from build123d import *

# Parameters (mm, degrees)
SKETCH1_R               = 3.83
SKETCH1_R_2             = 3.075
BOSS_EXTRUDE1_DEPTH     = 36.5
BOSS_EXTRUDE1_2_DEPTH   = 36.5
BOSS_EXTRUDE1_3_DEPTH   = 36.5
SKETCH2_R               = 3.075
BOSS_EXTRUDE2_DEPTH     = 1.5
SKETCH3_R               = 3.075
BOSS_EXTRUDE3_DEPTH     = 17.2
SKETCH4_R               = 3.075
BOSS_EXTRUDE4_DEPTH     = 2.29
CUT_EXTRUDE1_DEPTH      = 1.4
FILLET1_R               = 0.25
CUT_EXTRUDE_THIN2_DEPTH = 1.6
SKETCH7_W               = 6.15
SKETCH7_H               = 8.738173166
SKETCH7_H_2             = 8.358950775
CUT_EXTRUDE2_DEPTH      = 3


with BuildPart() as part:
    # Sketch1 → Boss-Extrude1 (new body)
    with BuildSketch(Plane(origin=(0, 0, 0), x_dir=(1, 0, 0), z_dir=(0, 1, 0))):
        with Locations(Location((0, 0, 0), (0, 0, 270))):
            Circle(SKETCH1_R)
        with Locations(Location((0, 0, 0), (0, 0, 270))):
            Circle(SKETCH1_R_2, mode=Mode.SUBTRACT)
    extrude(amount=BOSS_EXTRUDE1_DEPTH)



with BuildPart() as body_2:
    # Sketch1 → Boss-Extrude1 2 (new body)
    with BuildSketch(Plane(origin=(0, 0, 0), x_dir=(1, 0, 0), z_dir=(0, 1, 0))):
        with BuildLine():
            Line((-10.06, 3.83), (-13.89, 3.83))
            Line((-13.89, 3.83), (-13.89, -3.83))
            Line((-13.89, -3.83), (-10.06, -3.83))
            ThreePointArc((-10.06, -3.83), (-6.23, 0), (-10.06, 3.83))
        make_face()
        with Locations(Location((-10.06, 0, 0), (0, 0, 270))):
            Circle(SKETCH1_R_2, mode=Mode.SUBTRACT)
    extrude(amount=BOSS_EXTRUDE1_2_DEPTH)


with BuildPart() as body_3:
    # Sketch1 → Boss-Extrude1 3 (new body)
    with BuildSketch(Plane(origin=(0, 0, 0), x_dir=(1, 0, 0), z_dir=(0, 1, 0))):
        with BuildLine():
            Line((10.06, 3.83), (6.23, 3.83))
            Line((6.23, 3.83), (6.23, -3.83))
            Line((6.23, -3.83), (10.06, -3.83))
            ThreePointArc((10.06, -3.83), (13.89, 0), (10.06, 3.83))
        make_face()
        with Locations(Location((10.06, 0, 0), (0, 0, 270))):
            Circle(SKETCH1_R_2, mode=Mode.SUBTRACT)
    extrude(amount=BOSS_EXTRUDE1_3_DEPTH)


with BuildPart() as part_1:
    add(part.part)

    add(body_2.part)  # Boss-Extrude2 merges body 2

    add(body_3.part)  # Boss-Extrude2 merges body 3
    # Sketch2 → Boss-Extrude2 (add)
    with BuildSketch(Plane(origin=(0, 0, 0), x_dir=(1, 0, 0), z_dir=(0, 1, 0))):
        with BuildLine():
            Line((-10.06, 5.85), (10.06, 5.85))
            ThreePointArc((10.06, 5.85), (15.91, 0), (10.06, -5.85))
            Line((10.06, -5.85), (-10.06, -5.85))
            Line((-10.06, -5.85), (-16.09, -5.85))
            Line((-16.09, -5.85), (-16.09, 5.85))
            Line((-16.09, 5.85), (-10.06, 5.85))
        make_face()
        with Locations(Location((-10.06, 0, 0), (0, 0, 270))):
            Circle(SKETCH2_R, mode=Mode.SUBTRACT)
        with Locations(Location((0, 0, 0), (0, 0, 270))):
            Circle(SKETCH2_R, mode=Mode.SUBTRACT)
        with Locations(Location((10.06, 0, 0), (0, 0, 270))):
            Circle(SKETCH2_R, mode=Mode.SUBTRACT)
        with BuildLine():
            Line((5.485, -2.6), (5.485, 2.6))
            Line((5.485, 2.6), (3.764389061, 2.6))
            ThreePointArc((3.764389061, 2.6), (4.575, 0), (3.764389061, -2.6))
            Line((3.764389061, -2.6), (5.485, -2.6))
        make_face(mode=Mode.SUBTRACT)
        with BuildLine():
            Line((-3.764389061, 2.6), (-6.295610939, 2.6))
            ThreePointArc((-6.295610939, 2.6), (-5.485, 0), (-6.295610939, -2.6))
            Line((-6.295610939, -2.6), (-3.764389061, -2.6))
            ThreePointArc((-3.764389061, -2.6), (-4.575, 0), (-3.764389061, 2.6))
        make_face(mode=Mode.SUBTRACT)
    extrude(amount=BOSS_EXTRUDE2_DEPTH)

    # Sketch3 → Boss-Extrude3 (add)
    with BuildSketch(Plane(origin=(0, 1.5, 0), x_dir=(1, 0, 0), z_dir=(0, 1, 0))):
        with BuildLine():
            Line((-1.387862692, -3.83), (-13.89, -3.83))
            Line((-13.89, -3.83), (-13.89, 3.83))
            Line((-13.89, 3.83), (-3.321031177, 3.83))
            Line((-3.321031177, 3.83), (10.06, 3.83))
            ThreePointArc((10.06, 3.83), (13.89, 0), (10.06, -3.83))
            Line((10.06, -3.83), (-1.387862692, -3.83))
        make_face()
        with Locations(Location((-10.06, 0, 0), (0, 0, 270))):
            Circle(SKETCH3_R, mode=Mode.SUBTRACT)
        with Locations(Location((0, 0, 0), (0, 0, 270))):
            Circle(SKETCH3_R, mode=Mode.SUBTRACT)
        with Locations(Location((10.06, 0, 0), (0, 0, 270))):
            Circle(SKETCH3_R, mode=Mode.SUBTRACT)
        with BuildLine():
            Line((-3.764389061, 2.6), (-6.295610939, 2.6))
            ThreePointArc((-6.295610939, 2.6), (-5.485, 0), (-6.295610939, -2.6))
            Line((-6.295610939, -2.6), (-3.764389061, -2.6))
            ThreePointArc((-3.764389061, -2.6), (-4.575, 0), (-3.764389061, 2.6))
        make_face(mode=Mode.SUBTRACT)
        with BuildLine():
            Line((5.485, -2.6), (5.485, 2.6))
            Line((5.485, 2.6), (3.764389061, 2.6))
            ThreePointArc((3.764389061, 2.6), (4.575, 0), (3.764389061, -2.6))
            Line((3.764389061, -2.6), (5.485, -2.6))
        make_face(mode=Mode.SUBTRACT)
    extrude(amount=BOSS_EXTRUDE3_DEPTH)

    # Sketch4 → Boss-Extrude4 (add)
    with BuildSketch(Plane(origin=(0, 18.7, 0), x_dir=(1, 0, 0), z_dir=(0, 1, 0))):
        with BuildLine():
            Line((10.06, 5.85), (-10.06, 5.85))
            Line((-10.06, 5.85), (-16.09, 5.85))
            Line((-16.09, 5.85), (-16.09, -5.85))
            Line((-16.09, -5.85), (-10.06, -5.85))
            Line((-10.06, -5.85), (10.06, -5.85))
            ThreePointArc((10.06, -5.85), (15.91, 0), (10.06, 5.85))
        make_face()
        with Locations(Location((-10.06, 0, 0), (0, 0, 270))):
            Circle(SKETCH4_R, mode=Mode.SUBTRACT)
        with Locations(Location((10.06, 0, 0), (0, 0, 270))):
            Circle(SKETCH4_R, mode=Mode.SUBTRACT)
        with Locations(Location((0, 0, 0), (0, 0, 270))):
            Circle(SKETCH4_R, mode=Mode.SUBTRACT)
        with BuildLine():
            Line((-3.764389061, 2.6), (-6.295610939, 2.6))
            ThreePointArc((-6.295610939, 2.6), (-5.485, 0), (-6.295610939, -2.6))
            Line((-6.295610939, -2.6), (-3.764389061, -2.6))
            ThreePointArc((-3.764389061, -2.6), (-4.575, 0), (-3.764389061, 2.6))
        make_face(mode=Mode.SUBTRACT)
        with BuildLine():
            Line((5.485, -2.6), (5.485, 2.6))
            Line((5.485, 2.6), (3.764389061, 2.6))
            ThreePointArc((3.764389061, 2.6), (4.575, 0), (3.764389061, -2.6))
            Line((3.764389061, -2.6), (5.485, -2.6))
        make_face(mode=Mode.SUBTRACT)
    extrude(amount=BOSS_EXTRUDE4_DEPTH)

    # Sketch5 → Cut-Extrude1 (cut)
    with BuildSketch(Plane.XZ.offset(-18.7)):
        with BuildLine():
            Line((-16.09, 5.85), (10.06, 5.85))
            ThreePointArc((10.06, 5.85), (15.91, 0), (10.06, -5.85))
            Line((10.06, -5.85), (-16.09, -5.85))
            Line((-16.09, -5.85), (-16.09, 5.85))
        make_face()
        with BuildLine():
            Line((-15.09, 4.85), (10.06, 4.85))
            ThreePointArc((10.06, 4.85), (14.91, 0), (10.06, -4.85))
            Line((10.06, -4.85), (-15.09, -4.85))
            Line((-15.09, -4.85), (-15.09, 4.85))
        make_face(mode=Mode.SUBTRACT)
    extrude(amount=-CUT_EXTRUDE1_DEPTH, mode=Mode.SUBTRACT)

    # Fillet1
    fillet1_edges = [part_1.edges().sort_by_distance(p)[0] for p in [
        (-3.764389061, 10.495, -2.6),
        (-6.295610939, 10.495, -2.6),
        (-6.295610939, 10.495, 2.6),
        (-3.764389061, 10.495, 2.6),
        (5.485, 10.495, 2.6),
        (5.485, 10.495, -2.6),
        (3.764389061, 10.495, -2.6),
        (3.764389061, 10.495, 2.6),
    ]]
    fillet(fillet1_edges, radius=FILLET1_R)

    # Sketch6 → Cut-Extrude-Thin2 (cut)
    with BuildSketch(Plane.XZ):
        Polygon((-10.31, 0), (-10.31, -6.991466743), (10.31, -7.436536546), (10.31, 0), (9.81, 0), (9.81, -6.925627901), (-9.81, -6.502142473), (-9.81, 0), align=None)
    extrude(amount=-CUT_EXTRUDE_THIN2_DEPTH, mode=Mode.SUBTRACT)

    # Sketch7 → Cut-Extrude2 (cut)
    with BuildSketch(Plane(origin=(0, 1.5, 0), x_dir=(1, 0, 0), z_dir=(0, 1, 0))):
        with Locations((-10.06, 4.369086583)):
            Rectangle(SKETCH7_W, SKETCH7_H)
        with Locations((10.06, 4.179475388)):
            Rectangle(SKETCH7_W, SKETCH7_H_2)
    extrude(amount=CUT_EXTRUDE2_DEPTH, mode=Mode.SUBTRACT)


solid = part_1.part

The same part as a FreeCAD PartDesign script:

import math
import FreeCAD as App
import Part
import Sketcher


def edges_at(feature, points):
    """Names of the edges that pass closest to the given points."""
    edges = feature.Shape.Edges
    near = lambda p: min(range(len(edges)), key=lambda i: edges[i].distToShape(Part.Vertex(*p))[0])
    return sorted({f"Edge{near(p) + 1}" for p in points})


def add_polygon(sketch, points):
    """Adds a closed chain of lines whose ends are joined by coincident constraints."""
    first, n = sketch.GeometryCount, len(points)
    for a, b in zip(points, points[1:] + points[:1]):
        sketch.addGeometry(Part.LineSegment(App.Vector(*a, 0), App.Vector(*b, 0)), False)
    for i in range(n):
        sketch.addConstraint(Sketcher.Constraint("Coincident", first + i, 2, first + (i + 1) % n, 1))

doc = App.newDocument("Part")
body = doc.addObject("PartDesign::Body", "Body")

# Sketch on XZ plane
sketch1 = doc.addObject("Sketcher::SketchObject", "Sketch")
body.addObject(sketch1)
sketch1.AttachmentSupport = (doc.XZ_Plane, [""])
sketch1.MapMode = "FlatFace"
sketch1.addGeometry([
    Part.Circle(App.Vector(0, 0, 0), App.Vector(0, 0, 1), 3.83),
    Part.Circle(App.Vector(0, 0, 0), App.Vector(0, 0, 1), 3.075),
], False)
sketch1.addConstraint([
    Sketcher.Constraint("Coincident", 0, 3, -1, 1),
    Sketcher.Constraint("Coincident", 1, 3, -1, 1),
    Sketcher.Constraint("Diameter", 0, 7.66),
    Sketcher.Constraint("Diameter", 1, 6.15),
])
pad1 = doc.addObject("PartDesign::Pad", "Pad")
body.addObject(pad1)
pad1.Profile = sketch1
pad1.Length = 36.5
pad1.Reversed = True
body2 = doc.addObject("PartDesign::Body", "Body001")

# Sketch on XZ plane
sketch2 = doc.addObject("Sketcher::SketchObject", "Sketch001")
body2.addObject(sketch2)
sketch2.AttachmentSupport = (doc.getObject("XZ_Plane001"), [""])
sketch2.MapMode = "FlatFace"
sketch2.addGeometry([
    Part.LineSegment(App.Vector(-10.06, -3.83, 0), App.Vector(-13.89, -3.83, 0)),  # 0
    Part.LineSegment(App.Vector(-13.89, -3.83, 0), App.Vector(-13.89, 3.83, 0)),  # 1
    Part.LineSegment(App.Vector(-13.89, 3.83, 0), App.Vector(-10.06, 3.83, 0)),  # 2
    Part.ArcOfCircle(Part.Circle(App.Vector(-10.06, 0, 0), App.Vector(0, 0, 1), 3.83), math.radians(-90), math.radians(90)),  # 3
    Part.Circle(App.Vector(-10.06, 0, 0), App.Vector(0, 0, 1), 3.075),  # 4
], False)
sketch2.addConstraint([
    Sketcher.Constraint("Coincident", 0, 2, 1, 1),
    Sketcher.Constraint("Coincident", 1, 2, 2, 1),
    Sketcher.Constraint("Tangent", 2, 2, 3, 2),
    Sketcher.Constraint("Tangent", 3, 1, 0, 1),
    Sketcher.Constraint("Horizontal", 0),
    Sketcher.Constraint("Vertical", 1),
    Sketcher.Constraint("Horizontal", 2),
    Sketcher.Constraint("Coincident", 4, 3, 3, 3),
    Sketcher.Constraint("PointOnObject", 3, 3, -1),
    Sketcher.Constraint("Diameter", 4, 6.15),
    Sketcher.Constraint("Radius", 3, 3.83),
    Sketcher.Constraint("DistanceX", 0, 2, 0, 1, 3.83),
    Sketcher.Constraint("DistanceX", 3, 3, -1, 1, 10.06),
])
pad2 = doc.addObject("PartDesign::Pad", "Pad001")
body2.addObject(pad2)
pad2.Profile = sketch2
pad2.Length = 36.5
pad2.Reversed = True
body3 = doc.addObject("PartDesign::Body", "Body002")

# Sketch on XZ plane
sketch3 = doc.addObject("Sketcher::SketchObject", "Sketch002")
body3.addObject(sketch3)
sketch3.AttachmentSupport = (doc.getObject("XZ_Plane002"), [""])
sketch3.MapMode = "FlatFace"
sketch3.addGeometry([
    Part.LineSegment(App.Vector(10.06, -3.83, 0), App.Vector(6.23, -3.83, 0)),  # 0
    Part.LineSegment(App.Vector(6.23, -3.83, 0), App.Vector(6.23, 3.83, 0)),  # 1
    Part.LineSegment(App.Vector(6.23, 3.83, 0), App.Vector(10.06, 3.83, 0)),  # 2
    Part.ArcOfCircle(Part.Circle(App.Vector(10.06, 0, 0), App.Vector(0, 0, 1), 3.83), math.radians(-90), math.radians(90)),  # 3
    Part.Circle(App.Vector(10.06, 0, 0), App.Vector(0, 0, 1), 3.075),  # 4
], False)
sketch3.addConstraint([
    Sketcher.Constraint("Coincident", 0, 2, 1, 1),
    Sketcher.Constraint("Coincident", 1, 2, 2, 1),
    Sketcher.Constraint("Tangent", 2, 2, 3, 2),
    Sketcher.Constraint("Tangent", 3, 1, 0, 1),
    Sketcher.Constraint("Horizontal", 0),
    Sketcher.Constraint("Vertical", 1),
    Sketcher.Constraint("Horizontal", 2),
    Sketcher.Constraint("Coincident", 4, 3, 3, 3),
    Sketcher.Constraint("PointOnObject", 3, 3, -1),
    Sketcher.Constraint("Diameter", 4, 6.15),
    Sketcher.Constraint("Radius", 3, 3.83),
    Sketcher.Constraint("DistanceX", 0, 2, 0, 1, 3.83),
    Sketcher.Constraint("DistanceX", -1, 1, 3, 3, 10.06),
])
pad3 = doc.addObject("PartDesign::Pad", "Pad002")
body3.addObject(pad3)
pad3.Profile = sketch3
pad3.Length = 36.5
pad3.Reversed = True
body.AllowCompound = True
doc.recompute()

boolean = doc.addObject("PartDesign::Boolean", "Boolean")
body.addObject(boolean)
boolean.Type = "Fuse"
boolean.addObjects([body2])
doc.recompute()

boolean2 = doc.addObject("PartDesign::Boolean", "Boolean001")
body.addObject(boolean2)
boolean2.Type = "Fuse"
boolean2.addObjects([body3])

# Sketch on XZ plane
sketch4 = doc.addObject("Sketcher::SketchObject", "Sketch003")
body.addObject(sketch4)
sketch4.AttachmentSupport = (doc.XZ_Plane, [""])
sketch4.MapMode = "FlatFace"
sketch4.addGeometry([
    Part.ArcOfCircle(Part.Circle(App.Vector(10.06, 0, 0), App.Vector(0, 0, 1), 5.85), math.radians(-90), math.radians(90)),  # 0
    Part.LineSegment(App.Vector(10.06, -5.85, 0), App.Vector(-16.09, -5.85, 0)),  # 1
    Part.LineSegment(App.Vector(-16.09, -5.85, 0), App.Vector(-16.09, 5.85, 0)),  # 2
    Part.LineSegment(App.Vector(-16.09, 5.85, 0), App.Vector(10.06, 5.85, 0)),  # 3
    Part.Circle(App.Vector(10.06, 0, 0), App.Vector(0, 0, 1), 3.075),  # 4
    Part.LineSegment(App.Vector(5.485, 2.6, 0), App.Vector(3.764389, 2.6, 0)),  # 5
    Part.ArcOfCircle(Part.Circle(App.Vector(0, 0, 0), App.Vector(0, 0, 1), 4.575), math.radians(-34.632183), math.radians(34.632183)),  # 6
    Part.LineSegment(App.Vector(3.764389, -2.6, 0), App.Vector(5.485, -2.6, 0)),  # 7
    Part.LineSegment(App.Vector(5.485, -2.6, 0), App.Vector(5.485, 2.6, 0)),  # 8
    Part.Circle(App.Vector(0, 0, 0), App.Vector(0, 0, 1), 3.075),  # 9
    Part.ArcOfCircle(Part.Circle(App.Vector(0, 0, 0), App.Vector(0, 0, 1), 4.575), math.radians(145.367817), math.radians(214.632183)),  # 10
    Part.LineSegment(App.Vector(-3.764389, 2.6, 0), App.Vector(-6.295611, 2.6, 0)),  # 11
    Part.ArcOfCircle(Part.Circle(App.Vector(-10.06, 0, 0), App.Vector(0, 0, 1), 4.575), math.radians(-34.632183), math.radians(34.632183)),  # 12
    Part.LineSegment(App.Vector(-6.295611, -2.6, 0), App.Vector(-3.764389, -2.6, 0)),  # 13
    Part.Circle(App.Vector(-10.06, 0, 0), App.Vector(0, 0, 1), 3.075),  # 14
], False)
sketch4.addConstraint([
    Sketcher.Constraint("Tangent", 0, 1, 1, 1),
    Sketcher.Constraint("Coincident", 1, 2, 2, 1),
    Sketcher.Constraint("Coincident", 2, 2, 3, 1),
    Sketcher.Constraint("Tangent", 3, 2, 0, 2),
    Sketcher.Constraint("Coincident", 5, 2, 6, 2),
    Sketcher.Constraint("Coincident", 6, 1, 7, 1),
    Sketcher.Constraint("Coincident", 7, 2, 8, 1),
    Sketcher.Constraint("Coincident", 8, 2, 5, 1),
    Sketcher.Constraint("Coincident", 10, 1, 11, 1),
    Sketcher.Constraint("Coincident", 11, 2, 12, 2),
    Sketcher.Constraint("Coincident", 12, 1, 13, 1),
    Sketcher.Constraint("Coincident", 13, 2, 10, 2),
    Sketcher.Constraint("Horizontal", 1),
    Sketcher.Constraint("Vertical", 2),
    Sketcher.Constraint("Horizontal", 3),
    Sketcher.Constraint("Horizontal", 5),
    Sketcher.Constraint("Horizontal", 7),
    Sketcher.Constraint("Vertical", 8),
    Sketcher.Constraint("Horizontal", 11),
    Sketcher.Constraint("Horizontal", 13),
    Sketcher.Constraint("Coincident", 6, 3, -1, 1),
    Sketcher.Constraint("Coincident", 9, 3, -1, 1),
    Sketcher.Constraint("Coincident", 10, 3, -1, 1),
    Sketcher.Constraint("Coincident", 4, 3, 0, 3),
    Sketcher.Constraint("Coincident", 14, 3, 12, 3),
    Sketcher.Constraint("Equal", 4, 9),
    Sketcher.Constraint("Equal", 6, 10),
    Sketcher.Constraint("Equal", 10, 12),
    Sketcher.Constraint("Equal", 9, 14),
    Sketcher.Constraint("Symmetric", 0, 3, 12, 3, -1, 1),
    Sketcher.Constraint("Symmetric", 11, 2, 12, 1, -1),
    Sketcher.Constraint("Horizontal", 8, 2, 10, 1),
    Sketcher.Constraint("Horizontal", 7, 2, 12, 1),
    Sketcher.Constraint("Diameter", 4, 6.15),
    Sketcher.Constraint("Radius", 0, 5.85),
    Sketcher.Constraint("DistanceY", 8, 1, 8, 2, 5.2),
    Sketcher.Constraint("Radius", 6, 4.575),
    Sketcher.Constraint("DistanceX", 1, 2, 1, 1, 26.15),
    Sketcher.Constraint("DistanceX", -1, 1, 0, 3, 10.06),
    Sketcher.Constraint("DistanceX", -1, 1, 7, 2, 5.485),
])
pad4 = doc.addObject("PartDesign::Pad", "Pad003")
body.addObject(pad4)
pad4.Profile = sketch4
pad4.Length = 1.5
pad4.Reversed = True

# Sketch on XZ plane
sketch5 = doc.addObject("Sketcher::SketchObject", "Sketch004")
body.addObject(sketch5)
sketch5.AttachmentSupport = (doc.XZ_Plane, [""])
sketch5.MapMode = "FlatFace"
sketch5.AttachmentOffset = App.Placement(App.Vector(0, 0, -1.5), App.Rotation())
sketch5.addGeometry([
    Part.LineSegment(App.Vector(-13.89, -3.83, 0), App.Vector(-13.89, 3.83, 0)),  # 0
    Part.LineSegment(App.Vector(-13.89, 3.83, 0), App.Vector(10.06, 3.83, 0)),  # 1
    Part.ArcOfCircle(Part.Circle(App.Vector(10.06, 0, 0), App.Vector(0, 0, 1), 3.83), math.radians(-90), math.radians(90)),  # 2
    Part.LineSegment(App.Vector(10.06, -3.83, 0), App.Vector(-13.89, -3.83, 0)),  # 3
    Part.Circle(App.Vector(10.06, 0, 0), App.Vector(0, 0, 1), 3.075),  # 4
    Part.LineSegment(App.Vector(5.485, 2.6, 0), App.Vector(3.764389, 2.6, 0)),  # 5
    Part.ArcOfCircle(Part.Circle(App.Vector(0, 0, 0), App.Vector(0, 0, 1), 4.575), math.radians(-34.632183), math.radians(34.632183)),  # 6
    Part.LineSegment(App.Vector(3.764389, -2.6, 0), App.Vector(5.485, -2.6, 0)),  # 7
    Part.LineSegment(App.Vector(5.485, -2.6, 0), App.Vector(5.485, 2.6, 0)),  # 8
    Part.Circle(App.Vector(0, 0, 0), App.Vector(0, 0, 1), 3.075),  # 9
    Part.ArcOfCircle(Part.Circle(App.Vector(0, 0, 0), App.Vector(0, 0, 1), 4.575), math.radians(145.367817), math.radians(214.632183)),  # 10
    Part.LineSegment(App.Vector(-3.764389, 2.6, 0), App.Vector(-6.295611, 2.6, 0)),  # 11
    Part.ArcOfCircle(Part.Circle(App.Vector(-10.06, 0, 0), App.Vector(0, 0, 1), 4.575), math.radians(-34.632183), math.radians(34.632183)),  # 12
    Part.LineSegment(App.Vector(-6.295611, -2.6, 0), App.Vector(-3.764389, -2.6, 0)),  # 13
    Part.Circle(App.Vector(-10.06, 0, 0), App.Vector(0, 0, 1), 3.075),  # 14
], False)
sketch5.addConstraint([
    Sketcher.Constraint("Coincident", 0, 2, 1, 1),
    Sketcher.Constraint("Tangent", 1, 2, 2, 2),
    Sketcher.Constraint("Tangent", 2, 1, 3, 1),
    Sketcher.Constraint("Coincident", 3, 2, 0, 1),
    Sketcher.Constraint("Coincident", 5, 2, 6, 2),
    Sketcher.Constraint("Coincident", 6, 1, 7, 1),
    Sketcher.Constraint("Coincident", 7, 2, 8, 1),
    Sketcher.Constraint("Coincident", 8, 2, 5, 1),
    Sketcher.Constraint("Coincident", 10, 1, 11, 1),
    Sketcher.Constraint("Coincident", 11, 2, 12, 2),
    Sketcher.Constraint("Coincident", 12, 1, 13, 1),
    Sketcher.Constraint("Coincident", 13, 2, 10, 2),
    Sketcher.Constraint("Vertical", 0),
    Sketcher.Constraint("Horizontal", 1),
    Sketcher.Constraint("Horizontal", 3),
    Sketcher.Constraint("Horizontal", 5),
    Sketcher.Constraint("Horizontal", 7),
    Sketcher.Constraint("Vertical", 8),
    Sketcher.Constraint("Horizontal", 11),
    Sketcher.Constraint("Horizontal", 13),
    Sketcher.Constraint("Coincident", 6, 3, -1, 1),
    Sketcher.Constraint("Coincident", 9, 3, -1, 1),
    Sketcher.Constraint("Coincident", 10, 3, -1, 1),
    Sketcher.Constraint("Coincident", 4, 3, 2, 3),
    Sketcher.Constraint("Coincident", 14, 3, 12, 3),
    Sketcher.Constraint("Equal", 4, 9),
    Sketcher.Constraint("Equal", 6, 10),
    Sketcher.Constraint("Equal", 10, 12),
    Sketcher.Constraint("Equal", 9, 14),
    Sketcher.Constraint("Symmetric", 2, 3, 12, 3, -1, 1),
    Sketcher.Constraint("Symmetric", 11, 2, 12, 1, -1),
    Sketcher.Constraint("Horizontal", 8, 2, 10, 1),
    Sketcher.Constraint("Horizontal", 7, 2, 12, 1),
    Sketcher.Constraint("Diameter", 4, 6.15),
    Sketcher.Constraint("Radius", 2, 3.83),
    Sketcher.Constraint("DistanceY", 8, 1, 8, 2, 5.2),
    Sketcher.Constraint("Radius", 6, 4.575),
    Sketcher.Constraint("DistanceX", 1, 1, 1, 2, 23.95),
    Sketcher.Constraint("DistanceX", -1, 1, 2, 3, 10.06),
    Sketcher.Constraint("DistanceX", -1, 1, 7, 2, 5.485),
])
pad5 = doc.addObject("PartDesign::Pad", "Pad004")
body.addObject(pad5)
pad5.Profile = sketch5
pad5.Length = 17.2
pad5.Reversed = True

# Sketch on XZ plane
sketch6 = doc.addObject("Sketcher::SketchObject", "Sketch005")
body.addObject(sketch6)
sketch6.AttachmentSupport = (doc.XZ_Plane, [""])
sketch6.MapMode = "FlatFace"
sketch6.AttachmentOffset = App.Placement(App.Vector(0, 0, -18.7), App.Rotation())
sketch6.addGeometry([
    Part.LineSegment(App.Vector(10.06, -5.85, 0), App.Vector(-16.09, -5.85, 0)),  # 0
    Part.LineSegment(App.Vector(-16.09, -5.85, 0), App.Vector(-16.09, 5.85, 0)),  # 1
    Part.LineSegment(App.Vector(-16.09, 5.85, 0), App.Vector(10.06, 5.85, 0)),  # 2
    Part.ArcOfCircle(Part.Circle(App.Vector(10.06, 0, 0), App.Vector(0, 0, 1), 5.85), math.radians(-90), math.radians(90)),  # 3
    Part.Circle(App.Vector(-10.06, 0, 0), App.Vector(0, 0, 1), 3.075),  # 4
    Part.LineSegment(App.Vector(-6.295611, -2.6, 0), App.Vector(-3.764389, -2.6, 0)),  # 5
    Part.ArcOfCircle(Part.Circle(App.Vector(0, 0, 0), App.Vector(0, 0, 1), 4.575), math.radians(145.367817), math.radians(214.632183)),  # 6
    Part.LineSegment(App.Vector(-3.764389, 2.6, 0), App.Vector(-6.295611, 2.6, 0)),  # 7
    Part.ArcOfCircle(Part.Circle(App.Vector(-10.06, 0, 0), App.Vector(0, 0, 1), 4.575), math.radians(-34.632183), math.radians(34.632183)),  # 8
    Part.Circle(App.Vector(0, 0, 0), App.Vector(0, 0, 1), 3.075),  # 9
    Part.LineSegment(App.Vector(5.485, -2.6, 0), App.Vector(5.485, 2.6, 0)),  # 10
    Part.LineSegment(App.Vector(5.485, 2.6, 0), App.Vector(3.764389, 2.6, 0)),  # 11
    Part.ArcOfCircle(Part.Circle(App.Vector(0, 0, 0), App.Vector(0, 0, 1), 4.575), math.radians(-34.632183), math.radians(34.632183)),  # 12
    Part.LineSegment(App.Vector(3.764389, -2.6, 0), App.Vector(5.485, -2.6, 0)),  # 13
    Part.Circle(App.Vector(10.06, 0, 0), App.Vector(0, 0, 1), 3.075),  # 14
], False)
sketch6.addConstraint([
    Sketcher.Constraint("Coincident", 0, 2, 1, 1),
    Sketcher.Constraint("Coincident", 1, 2, 2, 1),
    Sketcher.Constraint("Tangent", 2, 2, 3, 2),
    Sketcher.Constraint("Tangent", 3, 1, 0, 1),
    Sketcher.Constraint("Coincident", 5, 2, 6, 2),
    Sketcher.Constraint("Coincident", 6, 1, 7, 1),
    Sketcher.Constraint("Coincident", 7, 2, 8, 2),
    Sketcher.Constraint("Coincident", 8, 1, 5, 1),
    Sketcher.Constraint("Coincident", 10, 2, 11, 1),
    Sketcher.Constraint("Coincident", 11, 2, 12, 2),
    Sketcher.Constraint("Coincident", 12, 1, 13, 1),
    Sketcher.Constraint("Coincident", 13, 2, 10, 1),
    Sketcher.Constraint("Horizontal", 0),
    Sketcher.Constraint("Vertical", 1),
    Sketcher.Constraint("Horizontal", 2),
    Sketcher.Constraint("Horizontal", 5),
    Sketcher.Constraint("Horizontal", 7),
    Sketcher.Constraint("Vertical", 10),
    Sketcher.Constraint("Horizontal", 11),
    Sketcher.Constraint("Horizontal", 13),
    Sketcher.Constraint("Coincident", 6, 3, -1, 1),
    Sketcher.Constraint("Coincident", 9, 3, -1, 1),
    Sketcher.Constraint("Coincident", 12, 3, -1, 1),
    Sketcher.Constraint("Coincident", 8, 3, 4, 3),
    Sketcher.Constraint("Coincident", 14, 3, 3, 3),
    Sketcher.Constraint("Equal", 6, 8),
    Sketcher.Constraint("Equal", 4, 9),
    Sketcher.Constraint("Equal", 8, 12),
    Sketcher.Constraint("Equal", 9, 14),
    Sketcher.Constraint("Symmetric", 3, 3, 4, 3, -1, 1),
    Sketcher.Constraint("Symmetric", 7, 2, 8, 1, -1),
    Sketcher.Constraint("Horizontal", 7, 2, 10, 2),
    Sketcher.Constraint("Horizontal", 8, 1, 12, 1),
    Sketcher.Constraint("Diameter", 4, 6.15),
    Sketcher.Constraint("Radius", 3, 5.85),
    Sketcher.Constraint("DistanceY", 10, 1, 10, 2, 5.2),
    Sketcher.Constraint("Radius", 6, 4.575),
    Sketcher.Constraint("DistanceX", 0, 2, 0, 1, 26.15),
    Sketcher.Constraint("DistanceX", -1, 1, 3, 3, 10.06),
    Sketcher.Constraint("DistanceX", -1, 1, 10, 2, 5.485),
])
pad6 = doc.addObject("PartDesign::Pad", "Pad005")
body.addObject(pad6)
pad6.Profile = sketch6
pad6.Length = 2.29
pad6.Reversed = True

# Sketch on XZ plane
sketch7 = doc.addObject("Sketcher::SketchObject", "Sketch006")
body.addObject(sketch7)
sketch7.AttachmentSupport = (doc.XZ_Plane, [""])
sketch7.MapMode = "FlatFace"
sketch7.AttachmentOffset = App.Placement(App.Vector(0, 0, -18.7), App.Rotation())
sketch7.addGeometry([
    Part.LineSegment(App.Vector(10.06, 5.85, 0), App.Vector(-16.09, 5.85, 0)),  # 0
    Part.LineSegment(App.Vector(-16.09, 5.85, 0), App.Vector(-16.09, -5.85, 0)),  # 1
    Part.LineSegment(App.Vector(-16.09, -5.85, 0), App.Vector(10.06, -5.85, 0)),  # 2
    Part.ArcOfCircle(Part.Circle(App.Vector(10.06, 0, 0), App.Vector(0, 0, 1), 5.85), math.radians(-90), math.radians(90)),  # 3
    Part.LineSegment(App.Vector(-15.09, 4.85, 0), App.Vector(10.06, 4.85, 0)),  # 4
    Part.ArcOfCircle(Part.Circle(App.Vector(10.06, 0, 0), App.Vector(0, 0, 1), 4.85), math.radians(-90), math.radians(90)),  # 5
    Part.LineSegment(App.Vector(10.06, -4.85, 0), App.Vector(-15.09, -4.85, 0)),  # 6
    Part.LineSegment(App.Vector(-15.09, -4.85, 0), App.Vector(-15.09, 4.85, 0)),  # 7
], False)
sketch7.addConstraint([
    Sketcher.Constraint("Coincident", 0, 2, 1, 1),
    Sketcher.Constraint("Coincident", 1, 2, 2, 1),
    Sketcher.Constraint("Tangent", 2, 2, 3, 1),
    Sketcher.Constraint("Tangent", 3, 2, 0, 1),
    Sketcher.Constraint("Tangent", 4, 2, 5, 2),
    Sketcher.Constraint("Tangent", 5, 1, 6, 1),
    Sketcher.Constraint("Coincident", 6, 2, 7, 1),
    Sketcher.Constraint("Coincident", 7, 2, 4, 1),
    Sketcher.Constraint("Horizontal", 0),
    Sketcher.Constraint("Vertical", 1),
    Sketcher.Constraint("Horizontal", 2),
    Sketcher.Constraint("Horizontal", 4),
    Sketcher.Constraint("Horizontal", 6),
    Sketcher.Constraint("Vertical", 7),
    Sketcher.Constraint("Coincident", 5, 3, 3, 3),
    Sketcher.Constraint("PointOnObject", 3, 3, -1),
    Sketcher.Constraint("Radius", 3, 5.85),
    Sketcher.Constraint("Radius", 5, 4.85),
    Sketcher.Constraint("DistanceX", 1, 2, 6, 2, 1.0),
    Sketcher.Constraint("DistanceX", 0, 2, 0, 1, 26.15),
    Sketcher.Constraint("DistanceX", -1, 1, 3, 3, 10.06),
])
pocket1 = doc.addObject("PartDesign::Pocket", "Pocket")
body.addObject(pocket1)
pocket1.Profile = sketch7
pocket1.Length = 1.4
doc.recompute()

fillet = doc.addObject("PartDesign::Fillet", "Fillet")
body.addObject(fillet)
fillet.Base = (pocket1, edges_at(pocket1, [
    (-3.764, 10.495, -2.6),
    (-6.296, 10.495, -2.6),
    (-6.296, 10.495, 2.6),
    (-3.764, 10.495, 2.6),
    (5.485, 10.495, 2.6),
    (5.485, 10.495, -2.6),
    (3.764, 10.495, -2.6),
    (3.764, 10.495, 2.6),
]))
fillet.Radius = 0.25

# Sketch on XZ plane
sketch8 = doc.addObject("Sketcher::SketchObject", "Sketch007")
body.addObject(sketch8)
sketch8.AttachmentSupport = (doc.XZ_Plane, [""])
sketch8.MapMode = "FlatFace"
add_polygon(sketch8, [(-10.31, 0), (-10.31, -6.991467), (10.31, -7.436537), (10.31, 0), (9.81, 0), (9.81, -6.925628), (-9.81, -6.502142), (-9.81, 0)])  # lines 0-7
sketch8.addConstraint([
    Sketcher.Constraint("Vertical", 0),
    Sketcher.Constraint("Vertical", 2),
    Sketcher.Constraint("Horizontal", 3),
    Sketcher.Constraint("Vertical", 4),
    Sketcher.Constraint("Vertical", 6),
    Sketcher.Constraint("Horizontal", 7),
    Sketcher.Constraint("Symmetric", 3, 2, 6, 2, -1, 1),
    Sketcher.Constraint("Symmetric", 2, 2, 7, 2, -2),
    Sketcher.Constraint("Parallel", 1, 5),
    Sketcher.Constraint("DistanceX", 3, 2, 3, 1, 0.5),
    Sketcher.Constraint("DistanceX", 0, 2, -1, 1, 10.31),
    Sketcher.Constraint("Distance", 5, 19.62457),
    Sketcher.Constraint("DistanceY", 0, 2, 0, 1, 6.991467),
    Sketcher.Constraint("DistanceY", 4, 2, 4, 1, 6.925628),
])
pocket2 = doc.addObject("PartDesign::Pocket", "Pocket001")
body.addObject(pocket2)
pocket2.Profile = sketch8
pocket2.Length = 1.6

# Sketch on XZ plane
sketch9 = doc.addObject("Sketcher::SketchObject", "Sketch008")
body.addObject(sketch9)
sketch9.AttachmentSupport = (doc.XZ_Plane, [""])
sketch9.MapMode = "FlatFace"
sketch9.AttachmentOffset = App.Placement(App.Vector(0, 0, -1.5), App.Rotation())
add_polygon(sketch9, [(-13.135, -8.738173), (-13.135, 0), (-6.985, 0), (-6.985, -8.738173)])  # lines 0-3
add_polygon(sketch9, [(6.985, -8.358951), (6.985, 0), (13.135, 0), (13.135, -8.358951)])  # lines 4-7
sketch9.addConstraint([
    Sketcher.Constraint("Vertical", 0),
    Sketcher.Constraint("Horizontal", 1),
    Sketcher.Constraint("Vertical", 2),
    Sketcher.Constraint("Horizontal", 3),
    Sketcher.Constraint("Vertical", 4),
    Sketcher.Constraint("Horizontal", 5),
    Sketcher.Constraint("Vertical", 6),
    Sketcher.Constraint("Horizontal", 7),
    Sketcher.Constraint("Symmetric", 1, 2, 4, 2, -1, 1),
    Sketcher.Constraint("Symmetric", 0, 2, 5, 2, -2),
    Sketcher.Constraint("DistanceX", 1, 1, 1, 2, 6.15),
    Sketcher.Constraint("DistanceX", 1, 2, 4, 2, 13.97),
    Sketcher.Constraint("DistanceY", 4, 1, 4, 2, 8.358951),
    Sketcher.Constraint("DistanceY", 0, 1, 0, 2, 8.738173),
])
pocket3 = doc.addObject("PartDesign::Pocket", "Pocket002")
body.addObject(pocket3)
pocket3.Profile = sketch9
pocket3.Length = 3

doc.recompute()
